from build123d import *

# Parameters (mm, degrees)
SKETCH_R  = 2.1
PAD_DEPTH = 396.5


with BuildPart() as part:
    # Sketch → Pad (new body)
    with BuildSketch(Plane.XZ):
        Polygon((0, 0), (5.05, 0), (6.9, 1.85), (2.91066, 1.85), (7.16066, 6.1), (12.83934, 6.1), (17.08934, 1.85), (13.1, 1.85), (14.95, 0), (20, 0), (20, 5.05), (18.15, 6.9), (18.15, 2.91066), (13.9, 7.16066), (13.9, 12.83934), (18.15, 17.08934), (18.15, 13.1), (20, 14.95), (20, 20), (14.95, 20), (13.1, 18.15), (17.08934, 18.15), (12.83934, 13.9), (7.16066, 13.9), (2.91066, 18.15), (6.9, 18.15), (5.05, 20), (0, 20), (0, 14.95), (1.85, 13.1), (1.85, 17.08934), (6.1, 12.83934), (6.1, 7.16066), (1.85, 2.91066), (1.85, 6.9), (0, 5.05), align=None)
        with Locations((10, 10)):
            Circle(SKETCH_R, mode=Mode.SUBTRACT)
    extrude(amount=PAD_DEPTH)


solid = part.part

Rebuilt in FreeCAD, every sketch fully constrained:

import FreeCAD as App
import Part
import Sketcher

V = App.Vector


def add_polygon(sketch, points):
    """Adds a closed chain of lines whose ends are joined by coincident constraints."""
    first, n = sketch.GeometryCount, len(points)
    for a, b in zip(points, points[1:] + points[:1]):
        sketch.addGeometry(Part.LineSegment(App.Vector(*a, 0), App.Vector(*b, 0)), False)
    for i in range(n):
        sketch.addConstraint(Sketcher.Constraint("Coincident", first + i, 2, first + (i + 1) % n, 1))

doc = App.newDocument("Part")
body = doc.addObject("PartDesign::Body", "Body")

# Sketch on XZ plane
sketch1 = body.newObject("Sketcher::SketchObject", "Sketch")
sketch1.AttachmentSupport = (doc.getObject("XZ_Plane"), [""])
sketch1.MapMode = "FlatFace"
add_polygon(sketch1, [(0, 0), (5, 0), (6.9, 1.9), (2.9, 1.9), (7.2, 6.1), (12.8, 6.1), (17.1, 1.9), (13.1, 1.9), (14.9, 0), (20, 0), (20, 5), (18.1, 6.9), (18.1, 2.9), (13.9, 7.2), (13.9, 12.8), (18.1, 17.1), (18.1, 13.1), (20, 14.9), (20, 20), (14.9, 20), (13.1, 18.1), (17.1, 18.1), (12.8, 13.9), (7.2, 13.9), (2.9, 18.1), (6.9, 18.1), (5, 20), (0, 20), (0, 14.9), (1.9, 13.1), (1.9, 17.1), (6.1, 12.8), (6.1, 7.2), (1.9, 2.9), (1.9, 6.9), (0, 5)])  # lines 0-35
sketch1.addGeometry(Part.Circle(V(10, 10, 0), V(0, 0, 1), 2.1), False)  # 36
sketch1.addConstraint(Sketcher.Constraint("Horizontal", 0))
sketch1.addConstraint(Sketcher.Constraint("Horizontal", 2))
sketch1.addConstraint(Sketcher.Constraint("Horizontal", 4))
sketch1.addConstraint(Sketcher.Constraint("Horizontal", 6))
sketch1.addConstraint(Sketcher.Constraint("Horizontal", 8))
sketch1.addConstraint(Sketcher.Constraint("Vertical", 9))
sketch1.addConstraint(Sketcher.Constraint("Vertical", 11))
sketch1.addConstraint(Sketcher.Constraint("Vertical", 13))
sketch1.addConstraint(Sketcher.Constraint("Vertical", 15))
sketch1.addConstraint(Sketcher.Constraint("Vertical", 17))
sketch1.addConstraint(Sketcher.Constraint("Horizontal", 18))
sketch1.addConstraint(Sketcher.Constraint("Horizontal", 20))
sketch1.addConstraint(Sketcher.Constraint("Horizontal", 22))
sketch1.addConstraint(Sketcher.Constraint("Horizontal", 24))
sketch1.addConstraint(Sketcher.Constraint("Horizontal", 26))
sketch1.addConstraint(Sketcher.Constraint("Vertical", 27))
sketch1.addConstraint(Sketcher.Constraint("Vertical", 29))
sketch1.addConstraint(Sketcher.Constraint("Vertical", 31))
sketch1.addConstraint(Sketcher.Constraint("Vertical", 33))
sketch1.addConstraint(Sketcher.Constraint("Vertical", 35))
sketch1.addConstraint(Sketcher.Constraint("Coincident", 35, 2, -1, 1))
sketch1.addConstraint(Sketcher.Constraint("PointOnObject", 7, 2, -1))
sketch1.addConstraint(Sketcher.Constraint("PointOnObject", 26, 2, -2))
sketch1.addConstraint(Sketcher.Constraint("Parallel", 1, 3))
sketch1.addConstraint(Sketcher.Constraint("Perpendicular", 3, 5))
sketch1.addConstraint(Sketcher.Constraint("Parallel", 5, 7))
sketch1.addConstraint(Sketcher.Constraint("Parallel", 7, 10))
sketch1.addConstraint(Sketcher.Constraint("Parallel", 10, 12))
sketch1.addConstraint(Sketcher.Constraint("Perpendicular", 12, 14))
sketch1.addConstraint(Sketcher.Constraint("Parallel", 14, 16))
sketch1.addConstraint(Sketcher.Constraint("Parallel", 16, 19))
sketch1.addConstraint(Sketcher.Constraint("Parallel", 19, 21))
sketch1.addConstraint(Sketcher.Constraint("Perpendicular", 21, 23))
sketch1.addConstraint(Sketcher.Constraint("Parallel", 23, 25))
sketch1.addConstraint(Sketcher.Constraint("Parallel", 25, 28))
sketch1.addConstraint(Sketcher.Constraint("Parallel", 28, 30))
sketch1.addConstraint(Sketcher.Constraint("Perpendicular", 30, 32))
sketch1.addConstraint(Sketcher.Constraint("Parallel", 32, 34))
sketch1.addConstraint(Sketcher.Constraint("Horizontal", 2, 2, 5, 2))
sketch1.addConstraint(Sketcher.Constraint("Horizontal", 20, 2, 23, 2))
sketch1.addConstraint(Sketcher.Constraint("Horizontal", 18, 2, 25, 2))
sketch1.addConstraint(Sketcher.Constraint("Horizontal", 16, 2, 27, 2))
sketch1.addConstraint(Sketcher.Constraint("Horizontal", 15, 2, 28, 2))
sketch1.addConstraint(Sketcher.Constraint("Horizontal", 14, 2, 29, 2))
sketch1.addConstraint(Sketcher.Constraint("Horizontal", 13, 2, 30, 2))
sketch1.addConstraint(Sketcher.Constraint("Horizontal", 12, 2, 31, 2))
sketch1.addConstraint(Sketcher.Constraint("Horizontal", 11, 2, 32, 2))
sketch1.addConstraint(Sketcher.Constraint("Horizontal", 10, 2, 33, 2))
sketch1.addConstraint(Sketcher.Constraint("Horizontal", 9, 2, 34, 2))
sketch1.addConstraint(Sketcher.Constraint("Vertical", 11, 2, 14, 2))
sketch1.addConstraint(Sketcher.Constraint("Vertical", 9, 2, 16, 2))
sketch1.addConstraint(Sketcher.Constraint("Vertical", 7, 2, 18, 2))
sketch1.addConstraint(Sketcher.Constraint("Vertical", 6, 2, 19, 2))
sketch1.addConstraint(Sketcher.Constraint("Vertical", 5, 2, 20, 2))
sketch1.addConstraint(Sketcher.Constraint("Vertical", 4, 2, 21, 2))
sketch1.addConstraint(Sketcher.Constraint("Vertical", 3, 2, 22, 2))
sketch1.addConstraint(Sketcher.Constraint("Vertical", 1, 2, 24, 2))
sketch1.addConstraint(Sketcher.Constraint("Equal", 2, 6))
sketch1.addConstraint(Sketcher.Constraint("Equal", 0, 8))
sketch1.addConstraint(Sketcher.Constraint("Equal", 26, 9))
sketch1.addConstraint(Sketcher.Constraint("Equal", 24, 11))
sketch1.addConstraint(Sketcher.Constraint("Equal", 22, 13))
sketch1.addConstraint(Sketcher.Constraint("Equal", 11, 15))
sketch1.addConstraint(Sketcher.Constraint("Equal", 9, 17))
sketch1.addConstraint(Sketcher.Constraint("Equal", 7, 10))
sketch1.addConstraint(Sketcher.Constraint("Equal", 5, 12))
sketch1.addConstraint(Sketcher.Constraint("Diameter", 36, 4.2))
sketch1.addConstraint(Sketcher.Constraint("DistanceX", -1, 1, 36, 3, 10.0))
sketch1.addConstraint(Sketcher.Constraint("DistanceY", -1, 1, 36, 3, 10.0))
sketch1.addConstraint(Sketcher.Constraint("DistanceX", -1, 1, 8, 2, 20.0))
sketch1.addConstraint(Sketcher.Constraint("DistanceX", 0, 1, 0, 2, 5.05))
sketch1.addConstraint(Sketcher.Constraint("DistanceX", -1, 1, 1, 2, 6.9))
sketch1.addConstraint(Sketcher.Constraint("DistanceY", -1, 1, 3, 2, 6.1))
sketch1.addConstraint(Sketcher.Constraint("DistanceX", 2, 2, 2, 1, 3.98934))
pad1 = body.newObject("PartDesign::Pad", "Pad")
pad1.Profile = sketch1
pad1.Length = 396.5

doc.recompute()
